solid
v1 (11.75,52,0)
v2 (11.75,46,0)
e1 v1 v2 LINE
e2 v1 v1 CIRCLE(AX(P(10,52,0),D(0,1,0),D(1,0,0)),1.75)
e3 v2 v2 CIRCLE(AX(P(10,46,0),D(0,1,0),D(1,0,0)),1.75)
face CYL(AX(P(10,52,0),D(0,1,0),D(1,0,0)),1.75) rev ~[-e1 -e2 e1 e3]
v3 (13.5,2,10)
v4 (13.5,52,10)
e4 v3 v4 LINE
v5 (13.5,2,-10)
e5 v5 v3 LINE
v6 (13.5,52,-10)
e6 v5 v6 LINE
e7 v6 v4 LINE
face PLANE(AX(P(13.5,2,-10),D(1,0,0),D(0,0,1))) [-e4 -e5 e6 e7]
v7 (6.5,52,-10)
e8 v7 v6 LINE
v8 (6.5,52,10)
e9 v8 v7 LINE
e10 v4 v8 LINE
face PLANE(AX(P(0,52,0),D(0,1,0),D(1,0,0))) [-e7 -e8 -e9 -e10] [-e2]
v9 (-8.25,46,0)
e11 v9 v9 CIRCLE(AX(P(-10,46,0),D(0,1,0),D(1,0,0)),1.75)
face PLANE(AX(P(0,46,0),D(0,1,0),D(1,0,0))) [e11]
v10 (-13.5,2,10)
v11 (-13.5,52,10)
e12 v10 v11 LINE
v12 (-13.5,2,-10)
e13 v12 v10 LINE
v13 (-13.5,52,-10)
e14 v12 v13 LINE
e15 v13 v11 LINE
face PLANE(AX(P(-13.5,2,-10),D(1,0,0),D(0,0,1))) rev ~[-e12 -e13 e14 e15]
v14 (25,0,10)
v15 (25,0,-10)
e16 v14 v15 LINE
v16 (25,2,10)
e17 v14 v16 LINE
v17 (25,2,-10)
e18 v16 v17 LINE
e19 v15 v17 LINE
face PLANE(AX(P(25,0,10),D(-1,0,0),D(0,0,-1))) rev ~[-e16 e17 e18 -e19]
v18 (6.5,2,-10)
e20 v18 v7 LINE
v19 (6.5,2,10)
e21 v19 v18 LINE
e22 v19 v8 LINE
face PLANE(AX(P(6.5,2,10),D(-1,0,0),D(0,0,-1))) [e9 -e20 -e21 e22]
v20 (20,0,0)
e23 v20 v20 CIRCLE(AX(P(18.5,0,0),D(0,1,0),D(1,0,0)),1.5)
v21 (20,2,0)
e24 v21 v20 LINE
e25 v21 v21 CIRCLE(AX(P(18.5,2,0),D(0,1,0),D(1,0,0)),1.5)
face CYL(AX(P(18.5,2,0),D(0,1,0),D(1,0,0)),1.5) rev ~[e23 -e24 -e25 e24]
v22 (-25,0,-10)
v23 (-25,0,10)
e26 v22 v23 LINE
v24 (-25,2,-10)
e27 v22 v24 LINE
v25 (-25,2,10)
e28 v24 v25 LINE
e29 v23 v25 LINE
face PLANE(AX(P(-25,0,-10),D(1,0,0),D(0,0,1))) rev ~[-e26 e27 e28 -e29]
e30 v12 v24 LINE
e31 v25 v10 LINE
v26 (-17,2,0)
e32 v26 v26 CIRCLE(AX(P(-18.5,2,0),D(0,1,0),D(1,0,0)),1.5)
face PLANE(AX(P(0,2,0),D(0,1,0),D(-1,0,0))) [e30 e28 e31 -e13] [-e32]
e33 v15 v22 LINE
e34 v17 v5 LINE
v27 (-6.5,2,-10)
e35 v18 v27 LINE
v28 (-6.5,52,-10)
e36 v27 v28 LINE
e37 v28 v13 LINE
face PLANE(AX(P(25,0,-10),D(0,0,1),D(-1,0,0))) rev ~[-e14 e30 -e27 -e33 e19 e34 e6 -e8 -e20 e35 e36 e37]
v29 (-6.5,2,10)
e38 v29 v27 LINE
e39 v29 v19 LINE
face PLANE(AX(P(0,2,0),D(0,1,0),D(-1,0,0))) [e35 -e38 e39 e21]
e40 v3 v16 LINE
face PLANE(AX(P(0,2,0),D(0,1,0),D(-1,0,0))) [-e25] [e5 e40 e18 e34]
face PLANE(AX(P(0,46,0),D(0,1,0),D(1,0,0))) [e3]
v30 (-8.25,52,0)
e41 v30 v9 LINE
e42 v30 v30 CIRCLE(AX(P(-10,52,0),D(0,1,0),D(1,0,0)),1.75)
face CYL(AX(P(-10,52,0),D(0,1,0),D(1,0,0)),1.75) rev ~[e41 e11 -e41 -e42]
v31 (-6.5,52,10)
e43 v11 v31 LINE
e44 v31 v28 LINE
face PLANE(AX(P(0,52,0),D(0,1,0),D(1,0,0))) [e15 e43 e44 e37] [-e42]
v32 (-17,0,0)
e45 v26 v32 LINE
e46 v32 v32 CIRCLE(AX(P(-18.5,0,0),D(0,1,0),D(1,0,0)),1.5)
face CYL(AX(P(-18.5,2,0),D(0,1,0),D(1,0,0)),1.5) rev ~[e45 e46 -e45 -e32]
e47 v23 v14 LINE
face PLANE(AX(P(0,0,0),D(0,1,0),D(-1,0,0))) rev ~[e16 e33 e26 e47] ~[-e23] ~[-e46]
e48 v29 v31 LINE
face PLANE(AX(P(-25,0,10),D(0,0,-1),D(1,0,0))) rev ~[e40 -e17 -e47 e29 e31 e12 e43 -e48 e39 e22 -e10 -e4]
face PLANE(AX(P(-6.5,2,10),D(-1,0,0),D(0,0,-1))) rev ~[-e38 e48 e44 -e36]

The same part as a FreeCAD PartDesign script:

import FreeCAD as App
import Part
import Sketcher
from FreeCAD import Vector

doc = App.newDocument("Part")
body = doc.addObject("PartDesign::Body", "Body")

# Sketch on XZ plane
sketch1 = doc.addObject("Sketcher::SketchObject", "Sketch")
body.addObject(sketch1)
sketch1.AttachmentSupport = (doc.XZ_Plane, [""])
sketch1.MapMode = "FlatFace"
sketch1.addGeometry([
    Part.LineSegment(Vector(25, 10, 0), Vector(25, -10, 0)),
    Part.LineSegment(Vector(25, -10, 0), Vector(-25, -10, 0)),
    Part.LineSegment(Vector(-25, -10, 0), Vector(-25, 10, 0)),
    Part.LineSegment(Vector(-25, 10, 0), Vector(25, 10, 0)),
], False)
sketch1.addConstraint([
    Sketcher.Constraint("Coincident", 0, 2, 1, 1),
    Sketcher.Constraint("Coincident", 1, 2, 2, 1),
    Sketcher.Constraint("Coincident", 2, 2, 3, 1),
    Sketcher.Constraint("Coincident", 3, 2, 0, 1),
    Sketcher.Constraint("Vertical", 0),
    Sketcher.Constraint("Horizontal", 1),
    Sketcher.Constraint("Vertical", 2),
    Sketcher.Constraint("Horizontal", 3),
    Sketcher.Constraint("Symmetric", 0, 2, 2, 2, -1, 1),
    Sketcher.Constraint("DistanceX", 1, 2, 1, 1, 50.0),
    Sketcher.Constraint("DistanceY", 0, 2, 0, 1, 20.0),
])
pad1 = doc.addObject("PartDesign::Pad", "Pad")
body.addObject(pad1)
pad1.Profile = sketch1
pad1.Length = 2
pad1.Reversed = True

# Sketch on XZ plane
sketch2 = doc.addObject("Sketcher::SketchObject", "Sketch001")
body.addObject(sketch2)
sketch2.AttachmentSupport = (doc.XZ_Plane, [""])
sketch2.MapMode = "FlatFace"
sketch2.AttachmentOffset = App.Placement(Vector(0, 0, -2), App.Rotation())
sketch2.addGeometry([
    Part.Circle(Vector(18.5, 0, 0), Vector(0, 0, 1), 1.5),
    Part.Circle(Vector(-18.5, 0, 0), Vector(0, 0, 1), 1.5),
], False)
sketch2.addConstraint([
    Sketcher.Constraint("Equal", 0, 1),
    Sketcher.Constraint("Symmetric", 0, 3, 1, 3, -1, 1),
    Sketcher.Constraint("PointOnObject", 0, 3, -1),
    Sketcher.Constraint("Diameter", 0, 3.0),
    Sketcher.Constraint("DistanceX", 1, 3, 0, 3, 37.0),
])
pocket1 = doc.addObject("PartDesign::Pocket", "Pocket")
body.addObject(pocket1)
pocket1.Profile = sketch2
pocket1.Length = 2
pocket1.Reversed = True

# Sketch on XZ plane
sketch3 = doc.addObject("Sketcher::SketchObject", "Sketch002")
body.addObject(sketch3)
sketch3.AttachmentSupport = (doc.XZ_Plane, [""])
sketch3.MapMode = "FlatFace"
sketch3.AttachmentOffset = App.Placement(Vector(0, 0, -2), App.Rotation())
sketch3.addGeometry([
    Part.LineSegment(Vector(14, -10, 0), Vector(6, -10, 0)),  # 0
    Part.LineSegment(Vector(6, -10, 0), Vector(6, 10, 0)),  # 1
    Part.LineSegment(Vector(6, 10, 0), Vector(14, 10, 0)),  # 2
    Part.LineSegment(Vector(14, 10, 0), Vector(14, -10, 0)),  # 3
    Part.LineSegment(Vector(-6, 10, 0), Vector(-6, -10, 0)),  # 4
    Part.LineSegment(Vector(-6, -10, 0), Vector(-14, -10, 0)),  # 5
    Part.LineSegment(Vector(-14, -10, 0), Vector(-14, 10, 0)),  # 6
    Part.LineSegment(Vector(-14, 10, 0), Vector(-6, 10, 0)),  # 7
], False)
sketch3.addConstraint([
    Sketcher.Constraint("Coincident", 0, 2, 1, 1),
    Sketcher.Constraint("Coincident", 1, 2, 2, 1),
    Sketcher.Constraint("Coincident", 2, 2, 3, 1),
    Sketcher.Constraint("Coincident", 3, 2, 0, 1),
    Sketcher.Constraint("Coincident", 4, 2, 5, 1),
    Sketcher.Constraint("Coincident", 5, 2, 6, 1),
    Sketcher.Constraint("Coincident", 6, 2, 7, 1),
    Sketcher.Constraint("Coincident", 7, 2, 4, 1),
    Sketcher.Constraint("Horizontal", 0),
    Sketcher.Constraint("Vertical", 1),
    Sketcher.Constraint("Horizontal", 2),
    Sketcher.Constraint("Vertical", 3),
    Sketcher.Constraint("Vertical", 4),
    Sketcher.Constraint("Horizontal", 5),
    Sketcher.Constraint("Vertical", 6),
    Sketcher.Constraint("Horizontal", 7),
    Sketcher.Constraint("Symmetric", 1, 2, 4, 2, -1, 1),
    Sketcher.Constraint("Symmetric", 3, 2, 6, 2, -1, 1),
    Sketcher.Constraint("Horizontal", 3, 2, 4, 2),
    Sketcher.Constraint("DistanceX", 0, 2, 0, 1, 7.0),
    Sketcher.Constraint("DistanceX", -1, 1, 0, 2, 6.5),
    Sketcher.Constraint("DistanceY", 1, 1, 1, 2, 20.0),
])
pad2 = doc.addObject("PartDesign::Pad", "Pad001")
body.addObject(pad2)
pad2.Profile = sketch3
pad2.Length = 50
pad2.Reversed = True

# Sketch on XZ plane
sketch4 = doc.addObject("Sketcher::SketchObject", "Sketch003")
body.addObject(sketch4)
sketch4.AttachmentSupport = (doc.XZ_Plane, [""])
sketch4.MapMode = "FlatFace"
sketch4.AttachmentOffset = App.Placement(Vector(0, 0, -52), App.Rotation())
sketch4.addGeometry([
    Part.Circle(Vector(10, 0, 0), Vector(0, 0, 1), 1.8),
    Part.Circle(Vector(-10, 0, 0), Vector(0, 0, 1), 1.8),
], False)
sketch4.addConstraint([
    Sketcher.Constraint("Equal", 0, 1),
    Sketcher.Constraint("Symmetric", 0, 3, 1, 3, -1, 1),
    Sketcher.Constraint("PointOnObject", 0, 3, -1),
    Sketcher.Constraint("Diameter", 0, 3.5),
    Sketcher.Constraint("DistanceX", -1, 1, 0, 3, 10.0),
])
pocket2 = doc.addObject("PartDesign::Pocket", "Pocket001")
body.addObject(pocket2)
pocket2.Profile = sketch4
pocket2.Length = 6
pocket2.Reversed = True

doc.recompute()
